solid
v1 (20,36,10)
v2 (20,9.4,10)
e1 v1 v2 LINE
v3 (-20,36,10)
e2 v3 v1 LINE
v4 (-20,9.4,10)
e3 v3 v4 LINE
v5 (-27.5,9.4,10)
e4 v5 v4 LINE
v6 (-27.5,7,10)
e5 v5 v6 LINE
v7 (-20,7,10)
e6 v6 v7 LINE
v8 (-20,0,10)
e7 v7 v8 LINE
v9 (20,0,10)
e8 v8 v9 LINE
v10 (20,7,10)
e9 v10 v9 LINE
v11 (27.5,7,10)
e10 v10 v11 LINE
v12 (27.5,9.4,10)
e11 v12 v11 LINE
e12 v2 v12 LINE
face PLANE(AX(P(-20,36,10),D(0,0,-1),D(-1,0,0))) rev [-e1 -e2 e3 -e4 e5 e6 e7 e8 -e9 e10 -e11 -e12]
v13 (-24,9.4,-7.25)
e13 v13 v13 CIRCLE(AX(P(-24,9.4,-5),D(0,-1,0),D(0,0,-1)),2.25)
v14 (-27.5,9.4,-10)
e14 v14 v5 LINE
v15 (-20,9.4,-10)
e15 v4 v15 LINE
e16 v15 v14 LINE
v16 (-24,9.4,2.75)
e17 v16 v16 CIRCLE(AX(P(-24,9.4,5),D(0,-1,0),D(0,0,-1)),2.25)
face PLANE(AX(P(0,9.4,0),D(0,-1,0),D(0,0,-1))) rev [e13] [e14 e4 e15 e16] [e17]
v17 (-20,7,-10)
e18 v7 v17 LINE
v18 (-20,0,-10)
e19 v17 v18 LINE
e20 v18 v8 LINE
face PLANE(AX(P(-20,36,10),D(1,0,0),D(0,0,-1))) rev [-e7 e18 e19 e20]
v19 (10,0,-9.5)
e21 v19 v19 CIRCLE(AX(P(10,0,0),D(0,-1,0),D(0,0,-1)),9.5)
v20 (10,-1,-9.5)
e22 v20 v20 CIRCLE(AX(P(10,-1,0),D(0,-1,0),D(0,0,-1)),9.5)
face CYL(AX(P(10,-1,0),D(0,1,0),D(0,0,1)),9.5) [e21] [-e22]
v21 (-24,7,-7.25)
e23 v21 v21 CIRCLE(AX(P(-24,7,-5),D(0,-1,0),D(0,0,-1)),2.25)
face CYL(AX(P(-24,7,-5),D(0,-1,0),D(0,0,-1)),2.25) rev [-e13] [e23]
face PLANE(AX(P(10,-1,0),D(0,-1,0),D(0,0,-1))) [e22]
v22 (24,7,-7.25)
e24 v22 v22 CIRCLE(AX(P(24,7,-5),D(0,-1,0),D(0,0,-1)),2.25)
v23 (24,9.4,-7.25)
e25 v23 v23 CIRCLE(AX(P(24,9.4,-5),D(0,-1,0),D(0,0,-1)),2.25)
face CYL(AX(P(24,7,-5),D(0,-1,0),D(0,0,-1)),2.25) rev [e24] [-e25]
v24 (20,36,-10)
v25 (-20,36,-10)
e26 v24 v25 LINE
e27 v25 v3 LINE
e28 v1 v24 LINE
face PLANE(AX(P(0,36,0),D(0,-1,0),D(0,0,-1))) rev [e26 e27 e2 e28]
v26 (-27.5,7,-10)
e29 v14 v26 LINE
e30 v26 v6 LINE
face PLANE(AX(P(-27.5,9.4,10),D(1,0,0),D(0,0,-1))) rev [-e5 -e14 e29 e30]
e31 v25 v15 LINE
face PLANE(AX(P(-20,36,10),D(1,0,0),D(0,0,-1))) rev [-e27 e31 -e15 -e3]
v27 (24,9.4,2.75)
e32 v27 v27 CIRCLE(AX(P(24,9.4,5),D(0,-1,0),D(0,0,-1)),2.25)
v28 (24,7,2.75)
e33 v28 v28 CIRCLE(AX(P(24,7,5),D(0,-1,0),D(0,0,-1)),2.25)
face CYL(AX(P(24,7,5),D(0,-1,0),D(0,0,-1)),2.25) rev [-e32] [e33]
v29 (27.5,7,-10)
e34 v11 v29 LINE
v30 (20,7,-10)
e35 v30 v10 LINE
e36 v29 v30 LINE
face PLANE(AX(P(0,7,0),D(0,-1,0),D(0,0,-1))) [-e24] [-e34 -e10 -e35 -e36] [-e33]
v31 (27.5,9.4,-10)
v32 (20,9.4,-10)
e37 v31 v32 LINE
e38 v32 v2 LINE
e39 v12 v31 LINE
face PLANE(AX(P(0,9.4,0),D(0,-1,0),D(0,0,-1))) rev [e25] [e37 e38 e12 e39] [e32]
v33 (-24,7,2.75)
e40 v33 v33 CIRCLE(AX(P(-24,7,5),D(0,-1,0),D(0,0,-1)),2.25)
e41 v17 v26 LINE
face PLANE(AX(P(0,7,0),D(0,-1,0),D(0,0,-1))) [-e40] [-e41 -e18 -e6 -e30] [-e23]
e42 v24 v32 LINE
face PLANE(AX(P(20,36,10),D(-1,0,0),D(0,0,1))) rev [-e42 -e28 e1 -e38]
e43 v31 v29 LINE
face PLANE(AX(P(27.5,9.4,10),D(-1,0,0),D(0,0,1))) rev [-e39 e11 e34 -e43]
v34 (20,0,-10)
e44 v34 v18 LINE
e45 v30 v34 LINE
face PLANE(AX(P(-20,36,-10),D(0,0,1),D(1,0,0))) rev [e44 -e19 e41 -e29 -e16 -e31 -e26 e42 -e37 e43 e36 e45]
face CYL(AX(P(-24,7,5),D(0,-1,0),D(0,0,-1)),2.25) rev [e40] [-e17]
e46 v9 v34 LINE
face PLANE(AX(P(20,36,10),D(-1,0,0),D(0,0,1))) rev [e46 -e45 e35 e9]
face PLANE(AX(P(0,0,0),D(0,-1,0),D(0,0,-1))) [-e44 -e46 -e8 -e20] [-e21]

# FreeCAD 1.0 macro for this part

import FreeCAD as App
import Part
import Sketcher
Q = App.Units.Quantity


def add_polygon(sketch, points):
    """Adds a closed chain of lines whose ends are joined by coincident constraints."""
    first, n = sketch.GeometryCount, len(points)
    for a, b in zip(points, points[1:] + points[:1]):
        sketch.addGeometry(Part.LineSegment(App.Vector(*a, 0), App.Vector(*b, 0)), False)
    for i in range(n):
        sketch.addConstraint(Sketcher.Constraint("Coincident", first + i, 2, first + (i + 1) % n, 1))

doc = App.newDocument("Part")
body = doc.addObject("PartDesign::Body", "Body")

# Sketch on XZ plane
sketch1 = body.newObject("Sketcher::SketchObject", "Sketch")
sketch1.AttachmentSupport = (doc.getObject("XZ_Plane"), [""])
sketch1.MapMode = "FlatFace"
add_polygon(sketch1, [(-20, -10), (-20, 10), (20, 10), (20, -10)])  # lines 0-3
sketch1.addConstraint([
    Sketcher.Constraint("Vertical", 0),
    Sketcher.Constraint("Horizontal", 1),
    Sketcher.Constraint("Vertical", 2),
    Sketcher.Constraint("Horizontal", 3),
    Sketcher.Constraint("Symmetric", 0, 2, 2, 2, -1, 1),
    Sketcher.Constraint("DistanceX", 1, 1, 1, 2, Q("40 mm")),
    Sketcher.Constraint("DistanceY", 0, 1, 0, 2, Q("20 mm")),
])
pad1 = body.newObject("PartDesign::Pad", "Pad")
pad1.Profile = sketch1
pad1.Length = 36
pad1.Reversed = True

# Sketch on XZ plane
sketch2 = body.newObject("Sketcher::SketchObject", "Sketch001")
sketch2.AttachmentSupport = (doc.getObject("XZ_Plane"), [""])
sketch2.MapMode = "FlatFace"
sketch2.AttachmentOffset = App.Placement(App.Vector(0, 0, -7), App.Rotation())
add_polygon(sketch2, [(-28, -10), (-28, 10), (28, 10), (28, -10)])  # lines 0-3
sketch2.addConstraint([
    Sketcher.Constraint("Vertical", 0),
    Sketcher.Constraint("Horizontal", 1),
    Sketcher.Constraint("Vertical", 2),
    Sketcher.Constraint("Horizontal", 3),
    Sketcher.Constraint("Symmetric", 0, 2, 2, 2, -1, 1),
    Sketcher.Constraint("DistanceX", 1, 1, 1, 2, Q("55 mm")),
    Sketcher.Constraint("DistanceY", 0, 1, 0, 2, Q("20 mm")),
])
pad2 = body.newObject("PartDesign::Pad", "Pad001")
pad2.Profile = sketch2
pad2.Length = 2.4
pad2.Reversed = True

# Sketch on XZ plane
sketch3 = body.newObject("Sketcher::SketchObject", "Sketch002")
sketch3.AttachmentSupport = (doc.getObject("XZ_Plane"), [""])
sketch3.MapMode = "FlatFace"
sketch3.AttachmentOffset = App.Placement(App.Vector(0, 0, -7), App.Rotation())
sketch3.addGeometry([
    Part.Circle(App.Vector(24, -5, 0), App.Vector(0, 0, 1), 2.2),
    Part.Circle(App.Vector(24, 5, 0), App.Vector(0, 0, 1), 2.2),
], False)
sketch3.addConstraint([
    Sketcher.Constraint("Equal", 0, 1),
    Sketcher.Constraint("Symmetric", 0, 3, 1, 3, -1),
    Sketcher.Constraint("Diameter", 0, Q("4.5 mm")),
    Sketcher.Constraint("DistanceX", -1, 1, 0, 3, Q("24 mm")),
    Sketcher.Constraint("DistanceY", 0, 3, -1, 1, Q("5 mm")),
])
doc.recompute()
hole = body.newObject("PartDesign::Hole", "Hole")
hole.Profile = sketch3
hole.ThreadType = "None"
hole.Diameter = 4.5
hole.DepthType = "ThroughAll"
doc.recompute()

mirrored = body.newObject("PartDesign::Mirrored", "Mirrored")
mirrored.Originals = [hole]
mirrored.MirrorPlane = (doc.getObject("YZ_Plane"), [""])
body.Tip = mirrored

# Sketch on XZ plane
sketch4 = body.newObject("Sketcher::SketchObject", "Sketch003")
sketch4.AttachmentSupport = (doc.getObject("XZ_Plane"), [""])
sketch4.MapMode = "FlatFace"
sketch4.addGeometry(Part.Circle(App.Vector(10, 0, 0), App.Vector(0, 0, 1), 10), False)
sketch4.addConstraint([
    Sketcher.Constraint("PointOnObject", 0, 3, -1),
    Sketcher.Constraint("Diameter", 0, Q("19 mm")),
    Sketcher.Constraint("DistanceX", -1, 1, 0, 3, Q("10 mm")),
])
pad3 = body.newObject("PartDesign::Pad", "Pad002")
pad3.Profile = sketch4
pad3.Length = 1

doc.recompute()
